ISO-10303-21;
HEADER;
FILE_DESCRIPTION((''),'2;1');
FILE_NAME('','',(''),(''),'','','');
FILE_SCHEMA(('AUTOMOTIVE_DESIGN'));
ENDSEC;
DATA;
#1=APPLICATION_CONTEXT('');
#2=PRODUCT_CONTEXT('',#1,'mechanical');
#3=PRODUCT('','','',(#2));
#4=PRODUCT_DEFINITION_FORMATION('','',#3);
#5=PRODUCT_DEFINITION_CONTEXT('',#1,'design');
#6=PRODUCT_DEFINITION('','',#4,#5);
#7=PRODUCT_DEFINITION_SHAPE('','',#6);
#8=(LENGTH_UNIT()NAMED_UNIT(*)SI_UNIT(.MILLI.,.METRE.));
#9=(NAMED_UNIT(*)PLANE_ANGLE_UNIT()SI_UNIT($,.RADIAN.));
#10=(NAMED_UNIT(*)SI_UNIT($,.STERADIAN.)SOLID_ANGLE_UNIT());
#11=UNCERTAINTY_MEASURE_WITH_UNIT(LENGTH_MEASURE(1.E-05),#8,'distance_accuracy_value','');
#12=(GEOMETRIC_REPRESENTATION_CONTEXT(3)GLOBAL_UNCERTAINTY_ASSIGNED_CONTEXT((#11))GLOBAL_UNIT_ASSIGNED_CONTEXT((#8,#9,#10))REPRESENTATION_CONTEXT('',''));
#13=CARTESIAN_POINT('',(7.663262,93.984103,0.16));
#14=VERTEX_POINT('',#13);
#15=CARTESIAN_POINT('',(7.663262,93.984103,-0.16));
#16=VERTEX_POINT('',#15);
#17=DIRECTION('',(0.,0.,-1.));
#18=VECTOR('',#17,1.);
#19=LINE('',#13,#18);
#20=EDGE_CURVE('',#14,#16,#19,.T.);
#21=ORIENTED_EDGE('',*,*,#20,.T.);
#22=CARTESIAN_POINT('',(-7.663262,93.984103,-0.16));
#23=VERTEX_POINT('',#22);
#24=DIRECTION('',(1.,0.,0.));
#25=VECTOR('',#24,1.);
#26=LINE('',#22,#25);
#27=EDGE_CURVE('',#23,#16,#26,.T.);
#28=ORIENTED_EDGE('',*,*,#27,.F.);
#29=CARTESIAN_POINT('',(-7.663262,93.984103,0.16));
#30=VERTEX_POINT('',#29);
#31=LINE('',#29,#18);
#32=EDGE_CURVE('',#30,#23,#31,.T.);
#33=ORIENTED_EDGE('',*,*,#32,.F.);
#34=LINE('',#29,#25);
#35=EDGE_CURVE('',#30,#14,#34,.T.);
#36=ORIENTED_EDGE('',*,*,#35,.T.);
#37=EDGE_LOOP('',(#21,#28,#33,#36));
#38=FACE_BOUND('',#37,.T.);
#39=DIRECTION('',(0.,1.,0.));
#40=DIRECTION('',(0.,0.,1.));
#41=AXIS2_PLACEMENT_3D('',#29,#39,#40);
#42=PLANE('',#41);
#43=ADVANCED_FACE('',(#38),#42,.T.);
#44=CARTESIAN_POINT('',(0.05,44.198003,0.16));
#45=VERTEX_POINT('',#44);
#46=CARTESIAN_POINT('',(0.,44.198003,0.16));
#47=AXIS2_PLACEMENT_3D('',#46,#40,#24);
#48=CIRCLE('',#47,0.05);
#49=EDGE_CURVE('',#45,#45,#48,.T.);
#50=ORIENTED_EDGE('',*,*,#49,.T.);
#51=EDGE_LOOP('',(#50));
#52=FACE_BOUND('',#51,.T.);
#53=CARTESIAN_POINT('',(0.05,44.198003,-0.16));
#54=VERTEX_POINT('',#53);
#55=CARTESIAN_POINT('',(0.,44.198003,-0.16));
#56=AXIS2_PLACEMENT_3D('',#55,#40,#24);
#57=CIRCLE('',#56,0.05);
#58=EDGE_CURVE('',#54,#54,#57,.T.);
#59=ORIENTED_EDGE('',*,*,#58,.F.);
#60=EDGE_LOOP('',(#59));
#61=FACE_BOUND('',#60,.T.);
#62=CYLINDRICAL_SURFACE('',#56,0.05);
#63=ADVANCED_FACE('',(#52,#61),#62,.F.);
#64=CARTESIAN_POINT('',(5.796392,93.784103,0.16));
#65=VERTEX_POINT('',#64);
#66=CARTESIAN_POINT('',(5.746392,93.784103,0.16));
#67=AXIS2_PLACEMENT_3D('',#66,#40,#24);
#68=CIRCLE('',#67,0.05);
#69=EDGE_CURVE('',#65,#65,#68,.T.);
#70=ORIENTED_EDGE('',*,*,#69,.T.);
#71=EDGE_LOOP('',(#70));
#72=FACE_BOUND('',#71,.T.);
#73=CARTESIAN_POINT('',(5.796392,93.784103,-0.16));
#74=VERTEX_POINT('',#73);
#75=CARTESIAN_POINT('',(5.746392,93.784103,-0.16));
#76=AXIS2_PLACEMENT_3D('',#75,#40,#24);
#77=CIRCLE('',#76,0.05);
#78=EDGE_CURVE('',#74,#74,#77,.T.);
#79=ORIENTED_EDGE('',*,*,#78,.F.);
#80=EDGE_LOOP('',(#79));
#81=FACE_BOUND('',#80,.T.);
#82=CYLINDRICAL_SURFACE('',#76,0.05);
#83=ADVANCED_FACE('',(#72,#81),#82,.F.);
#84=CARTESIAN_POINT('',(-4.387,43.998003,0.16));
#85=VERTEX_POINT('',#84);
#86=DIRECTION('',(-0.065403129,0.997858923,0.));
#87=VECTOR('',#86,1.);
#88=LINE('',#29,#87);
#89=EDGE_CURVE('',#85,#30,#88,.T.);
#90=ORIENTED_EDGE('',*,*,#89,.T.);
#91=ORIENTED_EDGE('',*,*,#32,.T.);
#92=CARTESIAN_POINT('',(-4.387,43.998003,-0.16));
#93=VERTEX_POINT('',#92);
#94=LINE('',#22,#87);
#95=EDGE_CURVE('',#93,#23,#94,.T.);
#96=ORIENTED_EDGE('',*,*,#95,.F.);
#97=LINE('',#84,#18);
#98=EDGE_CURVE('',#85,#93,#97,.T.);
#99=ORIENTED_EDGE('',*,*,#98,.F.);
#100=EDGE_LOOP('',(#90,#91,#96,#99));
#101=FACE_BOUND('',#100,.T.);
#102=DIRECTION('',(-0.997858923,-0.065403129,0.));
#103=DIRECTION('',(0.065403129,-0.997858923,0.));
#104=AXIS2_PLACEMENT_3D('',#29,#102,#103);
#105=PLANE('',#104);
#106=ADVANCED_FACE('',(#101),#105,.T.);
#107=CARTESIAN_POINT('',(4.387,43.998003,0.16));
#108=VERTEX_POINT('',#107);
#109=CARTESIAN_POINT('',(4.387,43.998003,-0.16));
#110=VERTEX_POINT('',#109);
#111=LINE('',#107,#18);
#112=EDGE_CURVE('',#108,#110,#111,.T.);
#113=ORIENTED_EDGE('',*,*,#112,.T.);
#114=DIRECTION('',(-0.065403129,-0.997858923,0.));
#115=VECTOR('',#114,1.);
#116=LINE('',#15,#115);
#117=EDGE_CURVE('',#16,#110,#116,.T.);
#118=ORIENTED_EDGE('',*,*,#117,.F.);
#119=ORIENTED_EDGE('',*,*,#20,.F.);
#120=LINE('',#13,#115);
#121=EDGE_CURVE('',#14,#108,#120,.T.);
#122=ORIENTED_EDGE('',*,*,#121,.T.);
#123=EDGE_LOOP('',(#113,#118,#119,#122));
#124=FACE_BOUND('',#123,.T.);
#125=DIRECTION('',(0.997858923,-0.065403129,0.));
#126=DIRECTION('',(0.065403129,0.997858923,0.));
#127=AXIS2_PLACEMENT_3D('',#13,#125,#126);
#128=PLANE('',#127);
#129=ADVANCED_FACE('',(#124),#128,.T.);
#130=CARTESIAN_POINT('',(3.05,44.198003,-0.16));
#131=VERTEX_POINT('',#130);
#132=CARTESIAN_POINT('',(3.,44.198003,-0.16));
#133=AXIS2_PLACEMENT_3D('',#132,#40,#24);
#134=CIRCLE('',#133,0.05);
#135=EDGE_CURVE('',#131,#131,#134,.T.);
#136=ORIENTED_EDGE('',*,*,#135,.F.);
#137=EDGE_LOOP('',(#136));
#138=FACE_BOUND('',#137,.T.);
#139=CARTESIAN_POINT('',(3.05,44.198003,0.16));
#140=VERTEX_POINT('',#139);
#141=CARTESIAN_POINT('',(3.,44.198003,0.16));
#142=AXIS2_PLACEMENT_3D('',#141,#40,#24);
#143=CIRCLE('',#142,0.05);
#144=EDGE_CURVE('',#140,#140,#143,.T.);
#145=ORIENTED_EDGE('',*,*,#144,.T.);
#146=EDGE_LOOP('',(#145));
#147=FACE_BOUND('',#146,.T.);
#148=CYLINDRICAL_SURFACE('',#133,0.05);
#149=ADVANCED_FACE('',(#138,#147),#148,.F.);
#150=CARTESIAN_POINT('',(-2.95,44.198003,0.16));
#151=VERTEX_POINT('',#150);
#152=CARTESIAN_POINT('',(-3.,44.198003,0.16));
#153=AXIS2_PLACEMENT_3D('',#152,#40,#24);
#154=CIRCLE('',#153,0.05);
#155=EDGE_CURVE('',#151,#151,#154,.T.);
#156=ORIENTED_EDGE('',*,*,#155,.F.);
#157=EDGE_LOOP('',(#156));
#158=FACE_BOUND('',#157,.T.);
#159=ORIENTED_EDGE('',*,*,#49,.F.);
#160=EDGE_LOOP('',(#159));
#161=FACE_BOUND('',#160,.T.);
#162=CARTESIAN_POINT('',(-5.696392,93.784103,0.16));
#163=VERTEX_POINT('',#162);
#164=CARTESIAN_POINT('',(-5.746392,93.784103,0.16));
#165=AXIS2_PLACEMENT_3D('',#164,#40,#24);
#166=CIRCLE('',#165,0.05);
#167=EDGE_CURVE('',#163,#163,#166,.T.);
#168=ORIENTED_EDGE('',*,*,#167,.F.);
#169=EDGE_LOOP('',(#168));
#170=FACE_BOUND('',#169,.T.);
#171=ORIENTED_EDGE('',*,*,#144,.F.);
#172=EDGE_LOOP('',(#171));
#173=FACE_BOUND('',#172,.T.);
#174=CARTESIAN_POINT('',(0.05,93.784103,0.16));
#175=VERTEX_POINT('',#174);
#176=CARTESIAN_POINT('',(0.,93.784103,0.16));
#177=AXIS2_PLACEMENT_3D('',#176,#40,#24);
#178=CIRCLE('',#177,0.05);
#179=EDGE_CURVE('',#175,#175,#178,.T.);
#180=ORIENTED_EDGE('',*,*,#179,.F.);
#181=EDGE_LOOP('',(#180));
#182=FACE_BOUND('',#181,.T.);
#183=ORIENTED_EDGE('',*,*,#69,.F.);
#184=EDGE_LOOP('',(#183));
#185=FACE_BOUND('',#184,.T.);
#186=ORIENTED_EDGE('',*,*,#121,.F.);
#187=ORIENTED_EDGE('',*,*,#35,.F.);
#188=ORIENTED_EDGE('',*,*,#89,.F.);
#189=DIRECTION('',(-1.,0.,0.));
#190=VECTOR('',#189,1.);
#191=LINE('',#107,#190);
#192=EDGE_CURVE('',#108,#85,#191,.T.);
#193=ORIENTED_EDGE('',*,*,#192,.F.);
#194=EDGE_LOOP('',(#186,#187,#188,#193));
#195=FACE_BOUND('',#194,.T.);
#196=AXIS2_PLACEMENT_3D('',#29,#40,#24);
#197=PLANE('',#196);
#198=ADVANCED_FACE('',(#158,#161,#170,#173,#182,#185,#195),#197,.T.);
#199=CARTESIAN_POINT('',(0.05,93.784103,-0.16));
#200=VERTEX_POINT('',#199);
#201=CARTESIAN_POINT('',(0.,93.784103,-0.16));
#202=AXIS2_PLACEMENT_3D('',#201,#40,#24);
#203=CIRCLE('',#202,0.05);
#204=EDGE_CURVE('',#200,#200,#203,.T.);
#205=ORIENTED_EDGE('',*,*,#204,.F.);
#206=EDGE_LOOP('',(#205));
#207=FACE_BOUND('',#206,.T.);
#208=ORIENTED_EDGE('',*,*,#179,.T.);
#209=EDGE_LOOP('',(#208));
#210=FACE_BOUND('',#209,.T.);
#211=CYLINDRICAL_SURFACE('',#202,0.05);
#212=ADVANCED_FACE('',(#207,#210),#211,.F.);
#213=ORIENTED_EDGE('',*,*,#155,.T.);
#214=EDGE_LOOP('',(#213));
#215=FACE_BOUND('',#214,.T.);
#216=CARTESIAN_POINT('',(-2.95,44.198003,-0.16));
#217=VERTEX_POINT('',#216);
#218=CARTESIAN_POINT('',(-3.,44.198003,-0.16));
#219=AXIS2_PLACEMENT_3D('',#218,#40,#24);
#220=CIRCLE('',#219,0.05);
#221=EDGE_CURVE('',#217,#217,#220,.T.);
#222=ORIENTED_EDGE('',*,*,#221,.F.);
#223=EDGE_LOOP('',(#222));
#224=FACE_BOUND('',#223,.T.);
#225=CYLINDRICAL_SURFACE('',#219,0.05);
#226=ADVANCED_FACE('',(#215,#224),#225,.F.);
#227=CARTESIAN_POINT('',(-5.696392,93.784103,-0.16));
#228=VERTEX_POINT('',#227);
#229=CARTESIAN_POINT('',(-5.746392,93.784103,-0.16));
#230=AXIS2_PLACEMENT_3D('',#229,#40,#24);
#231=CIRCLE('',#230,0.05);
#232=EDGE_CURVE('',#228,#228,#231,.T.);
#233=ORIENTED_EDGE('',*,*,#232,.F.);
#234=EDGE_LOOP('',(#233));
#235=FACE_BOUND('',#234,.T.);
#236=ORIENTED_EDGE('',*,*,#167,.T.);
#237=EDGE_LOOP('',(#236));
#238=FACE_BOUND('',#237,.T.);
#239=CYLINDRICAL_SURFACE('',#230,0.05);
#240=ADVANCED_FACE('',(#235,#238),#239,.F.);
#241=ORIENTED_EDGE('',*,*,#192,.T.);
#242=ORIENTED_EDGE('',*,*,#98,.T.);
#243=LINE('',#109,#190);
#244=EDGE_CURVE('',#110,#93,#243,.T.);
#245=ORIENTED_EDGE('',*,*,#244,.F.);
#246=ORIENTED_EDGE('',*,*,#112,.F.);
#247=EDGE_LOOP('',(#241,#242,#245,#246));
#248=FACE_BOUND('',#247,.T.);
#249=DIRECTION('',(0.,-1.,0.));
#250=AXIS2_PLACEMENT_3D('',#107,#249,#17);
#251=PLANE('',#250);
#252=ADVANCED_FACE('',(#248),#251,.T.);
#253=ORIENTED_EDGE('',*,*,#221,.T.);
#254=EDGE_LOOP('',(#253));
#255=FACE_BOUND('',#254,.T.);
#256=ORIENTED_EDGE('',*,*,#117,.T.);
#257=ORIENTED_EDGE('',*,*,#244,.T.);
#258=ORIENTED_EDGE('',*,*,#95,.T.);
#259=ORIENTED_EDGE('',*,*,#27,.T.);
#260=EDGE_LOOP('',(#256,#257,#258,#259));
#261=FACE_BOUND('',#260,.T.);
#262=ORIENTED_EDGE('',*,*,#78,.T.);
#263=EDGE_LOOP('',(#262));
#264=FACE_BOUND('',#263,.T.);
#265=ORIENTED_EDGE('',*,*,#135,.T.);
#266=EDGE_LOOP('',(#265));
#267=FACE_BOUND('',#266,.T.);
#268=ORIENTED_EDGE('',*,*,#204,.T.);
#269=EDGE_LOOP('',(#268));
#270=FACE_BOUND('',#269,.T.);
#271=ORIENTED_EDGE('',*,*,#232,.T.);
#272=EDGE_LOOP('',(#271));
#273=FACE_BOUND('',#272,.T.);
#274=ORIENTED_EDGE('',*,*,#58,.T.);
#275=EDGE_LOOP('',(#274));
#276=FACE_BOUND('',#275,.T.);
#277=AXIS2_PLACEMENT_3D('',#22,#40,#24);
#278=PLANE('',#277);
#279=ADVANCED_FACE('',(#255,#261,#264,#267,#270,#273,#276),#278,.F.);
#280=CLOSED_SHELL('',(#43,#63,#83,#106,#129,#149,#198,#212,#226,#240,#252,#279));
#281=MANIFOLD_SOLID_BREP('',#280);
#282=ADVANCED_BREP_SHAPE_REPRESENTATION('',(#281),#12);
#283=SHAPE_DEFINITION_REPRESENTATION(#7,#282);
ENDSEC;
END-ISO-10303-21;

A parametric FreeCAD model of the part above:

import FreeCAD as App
import Part
import Sketcher
from FreeCAD import Vector
Q = App.Units.Quantity


def add_polygon(sketch, points):
    """Adds a closed chain of lines whose ends are joined by coincident constraints."""
    first, n = sketch.GeometryCount, len(points)
    for a, b in zip(points, points[1:] + points[:1]):
        sketch.addGeometry(Part.LineSegment(App.Vector(*a, 0), App.Vector(*b, 0)), False)
    for i in range(n):
        sketch.addConstraint(Sketcher.Constraint("Coincident", first + i, 2, first + (i + 1) % n, 1))

doc = App.newDocument("Part")
body = doc.addObject("PartDesign::Body", "Body")

# Sketch on XY plane
sketch1 = body.newObject("Sketcher::SketchObject", "Sketch")
sketch1.AttachmentSupport = (doc.getObject("XY_Plane"), [""])
sketch1.MapMode = "FlatFace"
add_polygon(sketch1, [(4, 44), (-4, 44), (-8, 94), (8, 94)])  # lines 0-3
sketch1.addConstraint([
    Sketcher.Constraint("Horizontal", 0),
    Sketcher.Constraint("Horizontal", 2),
    Sketcher.Constraint("Equal", 1, 3),
    Sketcher.Constraint("Angle", 1, Q("93.75 deg")),
    Sketcher.Constraint("DistanceX", 0, 2, 0, 1, 8.774),
    Sketcher.Constraint("DistanceX", 0, 2, -1, 1, 4.387),
    Sketcher.Constraint("DistanceY", 0, 2, 1, 2, 49.9861),
    Sketcher.Constraint("DistanceY", -1, 1, 0, 2, 43.998003),
])
pad1 = body.newObject("PartDesign::Pad", "Pad")
pad1.Profile = sketch1
pad1.Length = 0.32
pad1.Midplane = True

# Sketch on XY plane
sketch2 = body.newObject("Sketcher::SketchObject", "Sketch001")
sketch2.AttachmentSupport = (doc.getObject("XY_Plane"), [""])
sketch2.MapMode = "FlatFace"
sketch2.AttachmentOffset = App.Placement(Vector(0, 0, 0.16), App.Rotation())
sketch2.addGeometry([
    Part.Circle(Vector(-3, 44.2, 0), Vector(0, 0, 1), 0.05),  # 0
    Part.Circle(Vector(0, 44.2, 0), Vector(0, 0, 1), 0.05),  # 1
    Part.Circle(Vector(3, 44.2, 0), Vector(0, 0, 1), 0.05),  # 2
    Part.Circle(Vector(-5.75, 93.78, 0), Vector(0, 0, 1), 0.05),  # 3
    Part.Circle(Vector(0, 93.78, 0), Vector(0, 0, 1), 0.05),  # 4
    Part.Circle(Vector(5.75, 93.78, 0), Vector(0, 0, 1), 0.05),  # 5
], False)
sketch2.addConstraint([
    Sketcher.Constraint("Equal", 0, 1),
    Sketcher.Constraint("Equal", 1, 2),
    Sketcher.Constraint("Equal", 2, 3),
    Sketcher.Constraint("Equal", 3, 4),
    Sketcher.Constraint("Equal", 4, 5),
    Sketcher.Constraint("Symmetric", 0, 3, 2, 3, -2),
    Sketcher.Constraint("Symmetric", 3, 3, 5, 3, -2),
    Sketcher.Constraint("PointOnObject", 1, 3, -2),
    Sketcher.Constraint("PointOnObject", 4, 3, -2),
    Sketcher.Constraint("Horizontal", 0, 3, 1, 3),
    Sketcher.Constraint("Horizontal", 3, 3, 4, 3),
    Sketcher.Constraint("Diameter", 0, 0.1),
    Sketcher.Constraint("DistanceX", 0, 3, -1, 1, 3.0),
    Sketcher.Constraint("DistanceY", 0, 3, 3, 3, 49.5861),
    Sketcher.Constraint("DistanceX", 3, 3, -1, 1, 5.746392),
    Sketcher.Constraint("DistanceY", -1, 1, 0, 3, 44.198003),
])
pocket1 = body.newObject("PartDesign::Pocket", "Pocket")
pocket1.Profile = sketch2
pocket1.Type = "ThroughAll"

doc.recompute()
